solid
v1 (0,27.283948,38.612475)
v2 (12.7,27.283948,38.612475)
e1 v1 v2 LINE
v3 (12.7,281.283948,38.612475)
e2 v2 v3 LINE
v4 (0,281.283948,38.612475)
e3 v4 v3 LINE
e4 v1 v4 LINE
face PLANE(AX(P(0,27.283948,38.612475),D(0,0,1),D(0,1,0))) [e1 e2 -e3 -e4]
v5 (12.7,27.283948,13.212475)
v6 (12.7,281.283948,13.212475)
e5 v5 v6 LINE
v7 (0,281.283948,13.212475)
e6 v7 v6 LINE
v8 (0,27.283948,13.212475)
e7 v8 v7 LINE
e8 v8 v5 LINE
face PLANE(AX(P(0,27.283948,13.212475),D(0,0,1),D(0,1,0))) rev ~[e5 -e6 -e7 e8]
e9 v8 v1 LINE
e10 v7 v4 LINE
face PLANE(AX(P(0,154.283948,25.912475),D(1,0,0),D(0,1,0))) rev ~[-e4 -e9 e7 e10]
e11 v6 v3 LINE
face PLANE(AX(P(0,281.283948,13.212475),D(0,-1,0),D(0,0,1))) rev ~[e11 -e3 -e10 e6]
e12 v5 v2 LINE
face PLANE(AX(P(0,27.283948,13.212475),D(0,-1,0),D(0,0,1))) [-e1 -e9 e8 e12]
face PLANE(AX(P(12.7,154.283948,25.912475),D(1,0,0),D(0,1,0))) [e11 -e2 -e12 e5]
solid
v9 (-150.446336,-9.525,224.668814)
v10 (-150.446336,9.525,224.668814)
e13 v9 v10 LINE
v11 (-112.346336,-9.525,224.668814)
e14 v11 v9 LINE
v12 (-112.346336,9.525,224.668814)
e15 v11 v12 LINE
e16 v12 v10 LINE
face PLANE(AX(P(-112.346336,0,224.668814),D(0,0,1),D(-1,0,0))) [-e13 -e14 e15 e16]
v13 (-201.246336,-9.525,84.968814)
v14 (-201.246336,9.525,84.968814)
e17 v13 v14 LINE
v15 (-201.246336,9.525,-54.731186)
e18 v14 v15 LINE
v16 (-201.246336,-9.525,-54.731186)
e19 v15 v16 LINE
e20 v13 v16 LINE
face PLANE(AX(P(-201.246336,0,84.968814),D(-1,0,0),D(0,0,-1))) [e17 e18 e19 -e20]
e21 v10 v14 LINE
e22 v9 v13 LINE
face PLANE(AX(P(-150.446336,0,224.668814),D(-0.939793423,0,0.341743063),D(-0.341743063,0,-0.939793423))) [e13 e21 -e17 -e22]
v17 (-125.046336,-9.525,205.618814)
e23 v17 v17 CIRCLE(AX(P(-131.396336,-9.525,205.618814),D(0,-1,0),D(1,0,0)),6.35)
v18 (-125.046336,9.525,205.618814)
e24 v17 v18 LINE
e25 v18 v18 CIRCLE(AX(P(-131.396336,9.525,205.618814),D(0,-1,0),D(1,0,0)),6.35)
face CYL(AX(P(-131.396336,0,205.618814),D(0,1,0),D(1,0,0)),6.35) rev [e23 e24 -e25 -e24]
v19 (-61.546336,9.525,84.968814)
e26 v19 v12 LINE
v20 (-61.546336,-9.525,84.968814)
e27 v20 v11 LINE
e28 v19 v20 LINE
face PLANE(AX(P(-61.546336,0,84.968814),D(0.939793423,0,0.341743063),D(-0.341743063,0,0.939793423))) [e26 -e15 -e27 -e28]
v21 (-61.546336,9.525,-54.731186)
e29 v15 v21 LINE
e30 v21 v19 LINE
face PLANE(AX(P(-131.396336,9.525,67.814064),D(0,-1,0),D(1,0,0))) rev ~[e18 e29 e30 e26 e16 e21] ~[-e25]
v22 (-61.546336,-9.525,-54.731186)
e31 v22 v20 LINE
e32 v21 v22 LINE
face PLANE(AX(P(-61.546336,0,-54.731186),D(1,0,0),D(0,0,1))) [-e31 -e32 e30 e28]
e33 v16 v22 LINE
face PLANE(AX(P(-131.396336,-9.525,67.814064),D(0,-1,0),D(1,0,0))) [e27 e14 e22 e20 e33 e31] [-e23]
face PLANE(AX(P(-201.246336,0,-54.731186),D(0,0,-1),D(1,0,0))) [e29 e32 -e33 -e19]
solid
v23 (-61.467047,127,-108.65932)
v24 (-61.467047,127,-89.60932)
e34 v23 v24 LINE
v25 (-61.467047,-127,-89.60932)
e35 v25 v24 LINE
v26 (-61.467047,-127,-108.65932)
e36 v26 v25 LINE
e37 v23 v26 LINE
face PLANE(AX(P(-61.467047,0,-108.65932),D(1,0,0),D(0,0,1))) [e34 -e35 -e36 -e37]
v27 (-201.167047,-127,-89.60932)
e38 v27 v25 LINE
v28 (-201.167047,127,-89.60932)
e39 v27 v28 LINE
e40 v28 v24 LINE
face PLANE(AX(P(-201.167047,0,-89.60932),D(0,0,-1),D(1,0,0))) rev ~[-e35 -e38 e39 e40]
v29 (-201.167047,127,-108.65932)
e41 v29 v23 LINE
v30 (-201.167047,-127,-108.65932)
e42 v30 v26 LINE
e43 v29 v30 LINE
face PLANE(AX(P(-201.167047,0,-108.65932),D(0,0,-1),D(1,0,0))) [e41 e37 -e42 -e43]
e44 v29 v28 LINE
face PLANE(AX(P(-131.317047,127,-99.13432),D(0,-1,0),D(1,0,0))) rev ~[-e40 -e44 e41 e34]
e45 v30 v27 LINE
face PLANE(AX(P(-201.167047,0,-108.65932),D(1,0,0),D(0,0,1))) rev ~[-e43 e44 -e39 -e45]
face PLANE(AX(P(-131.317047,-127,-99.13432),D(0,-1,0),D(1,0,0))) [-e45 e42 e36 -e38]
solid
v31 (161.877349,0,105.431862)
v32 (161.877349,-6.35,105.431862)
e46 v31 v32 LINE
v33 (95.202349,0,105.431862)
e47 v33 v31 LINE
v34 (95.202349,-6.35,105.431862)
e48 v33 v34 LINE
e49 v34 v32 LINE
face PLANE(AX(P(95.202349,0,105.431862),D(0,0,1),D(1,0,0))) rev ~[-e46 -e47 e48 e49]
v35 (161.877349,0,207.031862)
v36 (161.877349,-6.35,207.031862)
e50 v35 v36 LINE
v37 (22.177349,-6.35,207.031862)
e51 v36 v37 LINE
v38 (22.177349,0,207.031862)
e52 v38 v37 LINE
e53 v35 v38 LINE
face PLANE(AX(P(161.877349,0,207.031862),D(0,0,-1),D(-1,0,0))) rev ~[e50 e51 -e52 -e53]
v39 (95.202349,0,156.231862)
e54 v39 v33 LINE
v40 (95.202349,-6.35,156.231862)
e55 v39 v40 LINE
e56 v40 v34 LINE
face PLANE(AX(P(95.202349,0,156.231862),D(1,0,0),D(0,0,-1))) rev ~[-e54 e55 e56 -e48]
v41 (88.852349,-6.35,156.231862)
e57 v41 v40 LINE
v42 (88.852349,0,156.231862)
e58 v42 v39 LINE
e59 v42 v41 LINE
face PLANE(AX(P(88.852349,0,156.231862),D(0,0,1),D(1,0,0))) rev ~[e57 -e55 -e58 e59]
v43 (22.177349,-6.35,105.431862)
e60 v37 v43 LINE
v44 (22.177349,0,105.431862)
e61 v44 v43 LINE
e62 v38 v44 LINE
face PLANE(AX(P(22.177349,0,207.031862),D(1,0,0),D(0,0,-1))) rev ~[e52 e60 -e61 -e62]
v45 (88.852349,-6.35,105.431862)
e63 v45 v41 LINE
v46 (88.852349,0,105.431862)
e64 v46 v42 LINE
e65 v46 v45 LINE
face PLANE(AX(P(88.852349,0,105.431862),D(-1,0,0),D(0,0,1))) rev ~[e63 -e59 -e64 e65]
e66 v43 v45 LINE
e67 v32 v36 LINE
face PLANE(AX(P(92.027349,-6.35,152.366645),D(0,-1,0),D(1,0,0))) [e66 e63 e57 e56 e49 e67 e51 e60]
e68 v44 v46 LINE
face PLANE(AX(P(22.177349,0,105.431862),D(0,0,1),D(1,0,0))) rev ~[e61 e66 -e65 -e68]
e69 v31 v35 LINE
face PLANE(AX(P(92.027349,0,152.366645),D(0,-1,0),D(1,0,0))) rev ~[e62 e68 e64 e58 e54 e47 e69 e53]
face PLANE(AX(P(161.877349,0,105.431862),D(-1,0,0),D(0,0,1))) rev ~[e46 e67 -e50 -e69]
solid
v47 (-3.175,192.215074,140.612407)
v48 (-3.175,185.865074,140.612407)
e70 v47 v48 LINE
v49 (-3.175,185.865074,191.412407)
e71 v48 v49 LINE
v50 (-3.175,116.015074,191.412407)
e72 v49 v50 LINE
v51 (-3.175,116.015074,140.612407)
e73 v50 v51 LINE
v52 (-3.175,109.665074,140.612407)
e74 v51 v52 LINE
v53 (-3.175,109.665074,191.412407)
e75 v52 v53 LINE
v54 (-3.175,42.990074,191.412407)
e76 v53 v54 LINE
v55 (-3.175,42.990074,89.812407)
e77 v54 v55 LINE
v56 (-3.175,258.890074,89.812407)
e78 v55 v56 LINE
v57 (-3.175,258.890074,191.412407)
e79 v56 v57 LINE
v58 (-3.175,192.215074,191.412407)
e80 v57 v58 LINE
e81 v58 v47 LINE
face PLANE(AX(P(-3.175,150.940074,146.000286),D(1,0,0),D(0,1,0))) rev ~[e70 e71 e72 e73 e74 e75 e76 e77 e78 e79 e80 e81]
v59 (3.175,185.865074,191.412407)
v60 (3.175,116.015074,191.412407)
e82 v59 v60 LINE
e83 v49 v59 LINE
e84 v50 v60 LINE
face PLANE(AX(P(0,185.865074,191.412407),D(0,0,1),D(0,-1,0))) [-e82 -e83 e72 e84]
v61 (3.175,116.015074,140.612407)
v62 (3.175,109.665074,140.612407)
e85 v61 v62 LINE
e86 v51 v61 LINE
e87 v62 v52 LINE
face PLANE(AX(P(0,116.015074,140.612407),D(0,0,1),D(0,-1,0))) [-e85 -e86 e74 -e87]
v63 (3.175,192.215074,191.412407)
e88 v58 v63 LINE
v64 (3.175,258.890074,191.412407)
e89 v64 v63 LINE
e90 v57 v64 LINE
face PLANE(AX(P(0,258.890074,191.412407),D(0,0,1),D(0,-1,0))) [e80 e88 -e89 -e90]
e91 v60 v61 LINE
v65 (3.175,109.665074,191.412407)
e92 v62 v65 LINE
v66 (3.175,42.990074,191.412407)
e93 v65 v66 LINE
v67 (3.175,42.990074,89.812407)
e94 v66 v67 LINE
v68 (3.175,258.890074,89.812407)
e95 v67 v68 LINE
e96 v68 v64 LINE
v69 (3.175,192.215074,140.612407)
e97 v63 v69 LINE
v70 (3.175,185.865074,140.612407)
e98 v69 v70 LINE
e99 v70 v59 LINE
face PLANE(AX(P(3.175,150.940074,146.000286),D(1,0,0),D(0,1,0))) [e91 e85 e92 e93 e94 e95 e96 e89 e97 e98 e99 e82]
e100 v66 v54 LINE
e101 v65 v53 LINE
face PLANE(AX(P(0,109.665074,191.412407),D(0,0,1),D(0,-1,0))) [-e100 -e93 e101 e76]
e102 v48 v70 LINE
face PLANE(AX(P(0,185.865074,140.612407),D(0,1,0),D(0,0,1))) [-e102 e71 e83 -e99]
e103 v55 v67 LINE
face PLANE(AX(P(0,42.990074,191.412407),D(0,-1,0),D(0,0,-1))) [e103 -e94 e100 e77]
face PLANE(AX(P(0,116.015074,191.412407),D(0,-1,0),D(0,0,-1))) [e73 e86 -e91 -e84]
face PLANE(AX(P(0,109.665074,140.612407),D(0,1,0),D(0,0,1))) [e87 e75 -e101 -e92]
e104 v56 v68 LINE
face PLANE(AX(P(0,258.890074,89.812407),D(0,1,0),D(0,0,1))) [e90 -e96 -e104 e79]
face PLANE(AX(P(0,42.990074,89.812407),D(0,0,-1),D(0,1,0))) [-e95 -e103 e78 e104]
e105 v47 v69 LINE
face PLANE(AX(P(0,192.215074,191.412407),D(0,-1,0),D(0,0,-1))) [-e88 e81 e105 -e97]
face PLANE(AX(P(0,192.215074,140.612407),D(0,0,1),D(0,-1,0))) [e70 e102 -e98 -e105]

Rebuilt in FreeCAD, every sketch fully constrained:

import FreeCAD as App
import Part
import Sketcher

V = App.Vector
Q = App.Units.Quantity


def add_polygon(sketch, points):
    """Adds a closed chain of lines whose ends are joined by coincident constraints."""
    first, n = sketch.GeometryCount, len(points)
    for a, b in zip(points, points[1:] + points[:1]):
        sketch.addGeometry(Part.LineSegment(App.Vector(*a, 0), App.Vector(*b, 0)), False)
    for i in range(n):
        sketch.addConstraint(Sketcher.Constraint("Coincident", first + i, 2, first + (i + 1) % n, 1))

doc = App.newDocument("Part")
body = doc.addObject("PartDesign::Body", "Body")

sketch1 = body.newObject("Sketcher::SketchObject", "Sketch")
sketch1.AttachmentSupport = (doc.getObject("YZ_Plane"), [""])
sketch1.MapMode = "FlatFace"
add_polygon(sketch1, [(27, 39), (27, 13), (281, 13), (281, 39)])
sketch1.addConstraint(Sketcher.Constraint("Vertical", 0))
sketch1.addConstraint(Sketcher.Constraint("Horizontal", 1))
sketch1.addConstraint(Sketcher.Constraint("Vertical", 2))
sketch1.addConstraint(Sketcher.Constraint("Horizontal", 3))
sketch1.addConstraint(Sketcher.Constraint("DistanceX", 1, 1, 1, 2, Q("10 in")))
sketch1.addConstraint(Sketcher.Constraint("DistanceY", 0, 2, 0, 1, Q("1 in")))
sketch1.addConstraint(Sketcher.Constraint("DistanceX", -1, 1, 1, 2, 281.283948))
sketch1.addConstraint(Sketcher.Constraint("DistanceY", -1, 1, 0, 2, 13.212475))
pad1 = body.newObject("PartDesign::Pad", "Pad")
pad1.Profile = sketch1
pad1.Length = Q("0.5 in")
body2 = doc.addObject("PartDesign::Body", "Body001")

sketch2 = body2.newObject("Sketcher::SketchObject", "Sketch001")
sketch2.AttachmentSupport = (doc.getObject("XZ_Plane001"), [""])
sketch2.MapMode = "FlatFace"
add_polygon(sketch2, [(-201, 85), (-201, -55), (-62, -55), (-62, 85), (-112, 225), (-150, 225)])
sketch2.addGeometry(Part.Circle(V(-131, 206, 0), V(0, 0, 1), 6), False)
sketch2.addConstraint(Sketcher.Constraint("Vertical", 0))
sketch2.addConstraint(Sketcher.Constraint("Horizontal", 1))
sketch2.addConstraint(Sketcher.Constraint("Vertical", 2))
sketch2.addConstraint(Sketcher.Constraint("Horizontal", 4))
sketch2.addConstraint(Sketcher.Constraint("Horizontal", 2, 2, 5, 2))
sketch2.addConstraint(Sketcher.Constraint("Equal", 1, 0))
sketch2.addConstraint(Sketcher.Constraint("Equal", 3, 5))
sketch2.addConstraint(Sketcher.Constraint("Diameter", 6, Q("0.5 in")))
sketch2.addConstraint(Sketcher.Constraint("DistanceX", 1, 1, 1, 2, Q("5.5 in")))
sketch2.addConstraint(Sketcher.Constraint("DistanceX", 4, 2, 4, 1, Q("1.5 in")))
sketch2.addConstraint(Sketcher.Constraint("DistanceY", 1, 2, 3, 2, Q("11 in")))
sketch2.addConstraint(Sketcher.Constraint("DistanceX", 0, 2, 6, 3, Q("2.75 in")))
sketch2.addConstraint(Sketcher.Constraint("DistanceY", 0, 2, 6, 3, Q("10.25 in")))
sketch2.addConstraint(Sketcher.Constraint("DistanceX", 6, 3, -1, 1, 131.396336))
sketch2.addConstraint(Sketcher.Constraint("DistanceY", -1, 1, 6, 3, 205.618814))
pad2 = body2.newObject("PartDesign::Pad", "Pad001")
pad2.Profile = sketch2
pad2.Length = Q("0.75 in")
pad2.Midplane = True
body3 = doc.addObject("PartDesign::Body", "Body002")

sketch3 = body3.newObject("Sketcher::SketchObject", "Sketch002")
sketch3.AttachmentSupport = (doc.getObject("XZ_Plane002"), [""])
sketch3.MapMode = "FlatFace"
add_polygon(sketch3, [(-201, -90), (-201, -109), (-61, -109), (-61, -90)])
sketch3.addConstraint(Sketcher.Constraint("Vertical", 0))
sketch3.addConstraint(Sketcher.Constraint("Horizontal", 1))
sketch3.addConstraint(Sketcher.Constraint("Vertical", 2))
sketch3.addConstraint(Sketcher.Constraint("Horizontal", 3))
sketch3.addConstraint(Sketcher.Constraint("DistanceX", 1, 1, 1, 2, Q("5.5 in")))
sketch3.addConstraint(Sketcher.Constraint("DistanceY", 0, 2, 0, 1, Q("0.75 in")))
sketch3.addConstraint(Sketcher.Constraint("DistanceY", 0, 2, -1, 1, 108.65932))
sketch3.addConstraint(Sketcher.Constraint("DistanceX", 0, 2, -1, 1, 201.167047))
pad3 = body3.newObject("PartDesign::Pad", "Pad002")
pad3.Profile = sketch3
pad3.Length = Q("10 in")
pad3.Midplane = True
body4 = doc.addObject("PartDesign::Body", "Body003")

sketch4 = body4.newObject("Sketcher::SketchObject", "Sketch003")
sketch4.AttachmentSupport = (doc.getObject("YZ_Plane003"), [""])
sketch4.MapMode = "FlatFace"
add_polygon(sketch4, [(43, 191), (43, 90), (259, 90), (259, 191), (192, 191), (192, 141), (186, 141), (186, 191), (116, 191), (116, 141), (110, 141), (110, 191)])
sketch4.addConstraint(Sketcher.Constraint("Vertical", 0))
sketch4.addConstraint(Sketcher.Constraint("Horizontal", 1))
sketch4.addConstraint(Sketcher.Constraint("Vertical", 2))
sketch4.addConstraint(Sketcher.Constraint("Horizontal", 3))
sketch4.addConstraint(Sketcher.Constraint("Vertical", 4))
sketch4.addConstraint(Sketcher.Constraint("Horizontal", 5))
sketch4.addConstraint(Sketcher.Constraint("Vertical", 6))
sketch4.addConstraint(Sketcher.Constraint("Horizontal", 7))
sketch4.addConstraint(Sketcher.Constraint("Vertical", 8))
sketch4.addConstraint(Sketcher.Constraint("Horizontal", 9))
sketch4.addConstraint(Sketcher.Constraint("Vertical", 10))
sketch4.addConstraint(Sketcher.Constraint("Horizontal", 11))
sketch4.addConstraint(Sketcher.Constraint("Horizontal", 3, 2, 6, 2))
sketch4.addConstraint(Sketcher.Constraint("Horizontal", 5, 2, 8, 2))
sketch4.addConstraint(Sketcher.Constraint("Horizontal", 7, 2, 10, 2))
sketch4.addConstraint(Sketcher.Constraint("Equal", 5, 9))
sketch4.addConstraint(Sketcher.Constraint("Equal", 3, 11))
sketch4.addConstraint(Sketcher.Constraint("DistanceY", 0, 2, 0, 1, Q("4 in")))
sketch4.addConstraint(Sketcher.Constraint("DistanceY", 4, 2, 4, 1, Q("2 in")))
sketch4.addConstraint(Sketcher.Constraint("DistanceX", 1, 1, 1, 2, Q("8.5 in")))
sketch4.addConstraint(Sketcher.Constraint("DistanceX", 7, 2, 3, 2, Q("3 in")))
sketch4.addConstraint(Sketcher.Constraint("DistanceX", 5, 2, 5, 1, Q("0.25 in")))
sketch4.addConstraint(Sketcher.Constraint("DistanceX", -1, 1, 0, 2, 42.990074))
sketch4.addConstraint(Sketcher.Constraint("DistanceY", -1, 1, 0, 2, 89.812407))
pad4 = body4.newObject("PartDesign::Pad", "Pad003")
pad4.Profile = sketch4
pad4.Length = Q("0.25 in")
pad4.Midplane = True
body5 = doc.addObject("PartDesign::Body", "Body004")

sketch5 = body5.newObject("Sketcher::SketchObject", "Sketch004")
sketch5.AttachmentSupport = (doc.getObject("XZ_Plane004"), [""])
sketch5.MapMode = "FlatFace"
add_polygon(sketch5, [(162, 105), (162, 207), (22, 207), (22, 105), (89, 105), (89, 156), (95, 156), (95, 105)])
sketch5.addConstraint(Sketcher.Constraint("Vertical", 0))
sketch5.addConstraint(Sketcher.Constraint("Horizontal", 1))
sketch5.addConstraint(Sketcher.Constraint("Vertical", 2))
sketch5.addConstraint(Sketcher.Constraint("Horizontal", 3))
sketch5.addConstraint(Sketcher.Constraint("Vertical", 4))
sketch5.addConstraint(Sketcher.Constraint("Horizontal", 5))
sketch5.addConstraint(Sketcher.Constraint("Vertical", 6))
sketch5.addConstraint(Sketcher.Constraint("Horizontal", 7))
sketch5.addConstraint(Sketcher.Constraint("Horizontal", 3, 2, 6, 2))
sketch5.addConstraint(Sketcher.Constraint("Equal", 3, 7))
sketch5.addConstraint(Sketcher.Constraint("DistanceY", 0, 1, 0, 2, Q("4 in")))
sketch5.addConstraint(Sketcher.Constraint("DistanceY", 4, 1, 4, 2, Q("2 in")))
sketch5.addConstraint(Sketcher.Constraint("DistanceX", 1, 2, 1, 1, Q("5.5 in")))
sketch5.addConstraint(Sketcher.Constraint("DistanceX", 5, 1, 5, 2, Q("0.25 in")))
sketch5.addConstraint(Sketcher.Constraint("DistanceX", -1, 1, 0, 2, 161.877349))
sketch5.addConstraint(Sketcher.Constraint("DistanceY", -1, 1, 0, 2, 207.031862))
pad5 = body5.newObject("PartDesign::Pad", "Pad004")
pad5.Profile = sketch5
pad5.Length = Q("0.25 in")

doc.recompute()
